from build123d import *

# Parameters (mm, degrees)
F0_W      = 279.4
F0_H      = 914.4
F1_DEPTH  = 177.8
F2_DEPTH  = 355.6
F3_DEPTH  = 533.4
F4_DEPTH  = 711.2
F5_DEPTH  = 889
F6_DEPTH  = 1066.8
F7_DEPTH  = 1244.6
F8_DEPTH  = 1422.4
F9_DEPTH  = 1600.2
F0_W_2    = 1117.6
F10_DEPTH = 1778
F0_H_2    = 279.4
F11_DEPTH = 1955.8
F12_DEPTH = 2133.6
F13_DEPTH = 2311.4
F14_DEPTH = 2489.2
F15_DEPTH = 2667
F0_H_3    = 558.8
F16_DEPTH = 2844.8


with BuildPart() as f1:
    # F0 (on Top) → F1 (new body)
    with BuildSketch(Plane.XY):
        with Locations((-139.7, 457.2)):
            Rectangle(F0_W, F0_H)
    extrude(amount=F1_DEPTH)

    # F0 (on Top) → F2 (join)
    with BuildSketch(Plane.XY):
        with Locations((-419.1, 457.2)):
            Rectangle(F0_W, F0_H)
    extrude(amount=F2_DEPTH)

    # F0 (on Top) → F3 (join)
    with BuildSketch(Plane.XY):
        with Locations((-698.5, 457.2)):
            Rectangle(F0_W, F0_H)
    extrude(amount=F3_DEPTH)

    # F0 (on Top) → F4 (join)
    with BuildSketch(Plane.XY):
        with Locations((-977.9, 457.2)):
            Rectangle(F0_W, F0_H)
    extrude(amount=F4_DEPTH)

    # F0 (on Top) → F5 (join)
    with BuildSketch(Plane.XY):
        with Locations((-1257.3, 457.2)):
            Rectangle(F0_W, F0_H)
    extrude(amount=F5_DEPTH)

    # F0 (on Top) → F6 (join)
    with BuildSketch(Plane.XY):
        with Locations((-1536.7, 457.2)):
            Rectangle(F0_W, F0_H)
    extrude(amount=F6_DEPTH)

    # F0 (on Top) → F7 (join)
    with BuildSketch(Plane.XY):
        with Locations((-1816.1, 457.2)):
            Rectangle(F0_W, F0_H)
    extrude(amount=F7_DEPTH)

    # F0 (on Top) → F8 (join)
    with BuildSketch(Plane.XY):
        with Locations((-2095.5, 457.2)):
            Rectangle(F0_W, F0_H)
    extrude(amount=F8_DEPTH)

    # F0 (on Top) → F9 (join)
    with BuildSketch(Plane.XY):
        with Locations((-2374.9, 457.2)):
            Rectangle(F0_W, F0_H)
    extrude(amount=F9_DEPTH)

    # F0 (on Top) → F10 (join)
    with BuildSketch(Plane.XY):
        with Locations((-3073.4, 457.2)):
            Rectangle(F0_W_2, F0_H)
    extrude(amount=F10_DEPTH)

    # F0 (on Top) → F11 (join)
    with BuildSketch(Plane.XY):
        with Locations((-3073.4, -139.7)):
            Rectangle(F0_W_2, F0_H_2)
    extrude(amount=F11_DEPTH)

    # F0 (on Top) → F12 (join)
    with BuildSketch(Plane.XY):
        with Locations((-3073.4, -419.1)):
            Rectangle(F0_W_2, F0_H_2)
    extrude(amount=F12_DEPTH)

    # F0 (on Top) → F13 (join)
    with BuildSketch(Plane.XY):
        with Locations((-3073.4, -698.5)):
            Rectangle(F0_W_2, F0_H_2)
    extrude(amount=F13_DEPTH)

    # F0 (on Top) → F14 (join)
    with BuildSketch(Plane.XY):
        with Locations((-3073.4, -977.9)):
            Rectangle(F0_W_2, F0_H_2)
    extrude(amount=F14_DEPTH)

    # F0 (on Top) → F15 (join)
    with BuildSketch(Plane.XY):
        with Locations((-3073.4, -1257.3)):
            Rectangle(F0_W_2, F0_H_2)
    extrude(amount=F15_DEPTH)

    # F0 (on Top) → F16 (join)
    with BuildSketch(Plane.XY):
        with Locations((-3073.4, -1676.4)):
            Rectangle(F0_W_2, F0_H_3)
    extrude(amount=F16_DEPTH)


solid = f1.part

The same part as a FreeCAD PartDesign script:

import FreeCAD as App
import Part
import Sketcher
Q = App.Units.Quantity

doc = App.newDocument("Part")
body = doc.addObject("PartDesign::Body", "Body")

sketch1 = doc.addObject("Sketcher::SketchObject", "Sketch")
body.addObject(sketch1)
sketch1.AttachmentSupport = (doc.XY_Plane, [""])
sketch1.MapMode = "FlatFace"
sketch1.addGeometry([
    Part.LineSegment(App.Vector(-279, 914, 0), App.Vector(-279, 0, 0)),
    Part.LineSegment(App.Vector(-279, 0, 0), App.Vector(0, 0, 0)),
    Part.LineSegment(App.Vector(0, 0, 0), App.Vector(0, 914, 0)),
    Part.LineSegment(App.Vector(0, 914, 0), App.Vector(-279, 914, 0)),
], False)
sketch1.addConstraint([
    Sketcher.Constraint("Coincident", 0, 2, 1, 1),
    Sketcher.Constraint("Coincident", 1, 2, 2, 1),
    Sketcher.Constraint("Coincident", 2, 2, 3, 1),
    Sketcher.Constraint("Coincident", 3, 2, 0, 1),
    Sketcher.Constraint("Vertical", 0),
    Sketcher.Constraint("Horizontal", 1),
    Sketcher.Constraint("Vertical", 2),
    Sketcher.Constraint("Horizontal", 3),
    Sketcher.Constraint("Coincident", 1, 2, -1, 1),
    Sketcher.Constraint("DistanceX", 1, 1, 1, 2, Q("11 in")),
    Sketcher.Constraint("DistanceY", 0, 2, 0, 1, Q("36 in")),
])
pad1 = doc.addObject("PartDesign::Pad", "Pad")
body.addObject(pad1)
pad1.Profile = sketch1
pad1.Length = Q("7 in")

sketch2 = doc.addObject("Sketcher::SketchObject", "Sketch001")
body.addObject(sketch2)
sketch2.AttachmentSupport = (doc.XY_Plane, [""])
sketch2.MapMode = "FlatFace"
sketch2.addGeometry([
    Part.LineSegment(App.Vector(-559, 914, 0), App.Vector(-559, 0, 0)),
    Part.LineSegment(App.Vector(-559, 0, 0), App.Vector(-279, 0, 0)),
    Part.LineSegment(App.Vector(-279, 0, 0), App.Vector(-279, 914, 0)),
    Part.LineSegment(App.Vector(-279, 914, 0), App.Vector(-559, 914, 0)),
], False)
sketch2.addConstraint([
    Sketcher.Constraint("Coincident", 0, 2, 1, 1),
    Sketcher.Constraint("Coincident", 1, 2, 2, 1),
    Sketcher.Constraint("Coincident", 2, 2, 3, 1),
    Sketcher.Constraint("Coincident", 3, 2, 0, 1),
    Sketcher.Constraint("Vertical", 0),
    Sketcher.Constraint("Horizontal", 1),
    Sketcher.Constraint("Vertical", 2),
    Sketcher.Constraint("Horizontal", 3),
    Sketcher.Constraint("PointOnObject", 0, 2, -1),
    Sketcher.Constraint("DistanceX", 1, 1, 1, 2, Q("11 in")),
    Sketcher.Constraint("DistanceY", 0, 2, 0, 1, Q("36 in")),
    Sketcher.Constraint("DistanceX", 0, 2, -1, 1, Q("22 in")),
])
pad2 = doc.addObject("PartDesign::Pad", "Pad001")
body.addObject(pad2)
pad2.Profile = sketch2
pad2.Length = Q("14 in")

sketch3 = doc.addObject("Sketcher::SketchObject", "Sketch002")
body.addObject(sketch3)
sketch3.AttachmentSupport = (doc.XY_Plane, [""])
sketch3.MapMode = "FlatFace"
sketch3.addGeometry([
    Part.LineSegment(App.Vector(-838, 914, 0), App.Vector(-838, 0, 0)),
    Part.LineSegment(App.Vector(-838, 0, 0), App.Vector(-559, 0, 0)),
    Part.LineSegment(App.Vector(-559, 0, 0), App.Vector(-559, 914, 0)),
    Part.LineSegment(App.Vector(-559, 914, 0), App.Vector(-838, 914, 0)),
], False)
sketch3.addConstraint([
    Sketcher.Constraint("Coincident", 0, 2, 1, 1),
    Sketcher.Constraint("Coincident", 1, 2, 2, 1),
    Sketcher.Constraint("Coincident", 2, 2, 3, 1),
    Sketcher.Constraint("Coincident", 3, 2, 0, 1),
    Sketcher.Constraint("Vertical", 0),
    Sketcher.Constraint("Horizontal", 1),
    Sketcher.Constraint("Vertical", 2),
    Sketcher.Constraint("Horizontal", 3),
    Sketcher.Constraint("PointOnObject", 0, 2, -1),
    Sketcher.Constraint("DistanceX", 1, 1, 1, 2, Q("11 in")),
    Sketcher.Constraint("DistanceY", 0, 2, 0, 1, Q("36 in")),
    Sketcher.Constraint("DistanceX", 0, 2, -1, 1, Q("33 in")),
])
pad3 = doc.addObject("PartDesign::Pad", "Pad002")
body.addObject(pad3)
pad3.Profile = sketch3
pad3.Length = Q("21 in")

sketch4 = doc.addObject("Sketcher::SketchObject", "Sketch003")
body.addObject(sketch4)
sketch4.AttachmentSupport = (doc.XY_Plane, [""])
sketch4.MapMode = "FlatFace"
sketch4.addGeometry([
    Part.LineSegment(App.Vector(-1118, 914, 0), App.Vector(-1118, 0, 0)),
    Part.LineSegment(App.Vector(-1118, 0, 0), App.Vector(-838, 0, 0)),
    Part.LineSegment(App.Vector(-838, 0, 0), App.Vector(-838, 914, 0)),
    Part.LineSegment(App.Vector(-838, 914, 0), App.Vector(-1118, 914, 0)),
], False)
sketch4.addConstraint([
    Sketcher.Constraint("Coincident", 0, 2, 1, 1),
    Sketcher.Constraint("Coincident", 1, 2, 2, 1),
    Sketcher.Constraint("Coincident", 2, 2, 3, 1),
    Sketcher.Constraint("Coincident", 3, 2, 0, 1),
    Sketcher.Constraint("Vertical", 0),
    Sketcher.Constraint("Horizontal", 1),
    Sketcher.Constraint("Vertical", 2),
    Sketcher.Constraint("Horizontal", 3),
    Sketcher.Constraint("PointOnObject", 0, 2, -1),
    Sketcher.Constraint("DistanceX", 1, 1, 1, 2, Q("11 in")),
    Sketcher.Constraint("DistanceY", 0, 2, 0, 1, Q("36 in")),
    Sketcher.Constraint("DistanceX", 0, 2, -1, 1, Q("44 in")),
])
pad4 = doc.addObject("PartDesign::Pad", "Pad003")
body.addObject(pad4)
pad4.Profile = sketch4
pad4.Length = Q("28 in")

sketch5 = doc.addObject("Sketcher::SketchObject", "Sketch004")
body.addObject(sketch5)
sketch5.AttachmentSupport = (doc.XY_Plane, [""])
sketch5.MapMode = "FlatFace"
sketch5.addGeometry([
    Part.LineSegment(App.Vector(-1397, 914, 0), App.Vector(-1397, 0, 0)),
    Part.LineSegment(App.Vector(-1397, 0, 0), App.Vector(-1118, 0, 0)),
    Part.LineSegment(App.Vector(-1118, 0, 0), App.Vector(-1118, 914, 0)),
    Part.LineSegment(App.Vector(-1118, 914, 0), App.Vector(-1397, 914, 0)),
], False)
sketch5.addConstraint([
    Sketcher.Constraint("Coincident", 0, 2, 1, 1),
    Sketcher.Constraint("Coincident", 1, 2, 2, 1),
    Sketcher.Constraint("Coincident", 2, 2, 3, 1),
    Sketcher.Constraint("Coincident", 3, 2, 0, 1),
    Sketcher.Constraint("Vertical", 0),
    Sketcher.Constraint("Horizontal", 1),
    Sketcher.Constraint("Vertical", 2),
    Sketcher.Constraint("Horizontal", 3),
    Sketcher.Constraint("PointOnObject", 0, 2, -1),
    Sketcher.Constraint("DistanceX", 1, 1, 1, 2, Q("11 in")),
    Sketcher.Constraint("DistanceY", 0, 2, 0, 1, Q("36 in")),
    Sketcher.Constraint("DistanceX", 0, 2, -1, 1, Q("55 in")),
])
pad5 = doc.addObject("PartDesign::Pad", "Pad004")
body.addObject(pad5)
pad5.Profile = sketch5
pad5.Length = Q("35 in")

sketch6 = doc.addObject("Sketcher::SketchObject", "Sketch005")
body.addObject(sketch6)
sketch6.AttachmentSupport = (doc.XY_Plane, [""])
sketch6.MapMode = "FlatFace"
sketch6.addGeometry([
    Part.LineSegment(App.Vector(-1676, 914, 0), App.Vector(-1676, 0, 0)),
    Part.LineSegment(App.Vector(-1676, 0, 0), App.Vector(-1397, 0, 0)),
    Part.LineSegment(App.Vector(-1397, 0, 0), App.Vector(-1397, 914, 0)),
    Part.LineSegment(App.Vector(-1397, 914, 0), App.Vector(-1676, 914, 0)),
], False)
sketch6.addConstraint([
    Sketcher.Constraint("Coincident", 0, 2, 1, 1),
    Sketcher.Constraint("Coincident", 1, 2, 2, 1),
    Sketcher.Constraint("Coincident", 2, 2, 3, 1),
    Sketcher.Constraint("Coincident", 3, 2, 0, 1),
    Sketcher.Constraint("Vertical", 0),
    Sketcher.Constraint("Horizontal", 1),
    Sketcher.Constraint("Vertical", 2),
    Sketcher.Constraint("Horizontal", 3),
    Sketcher.Constraint("PointOnObject", 0, 2, -1),
    Sketcher.Constraint("DistanceX", 1, 1, 1, 2, Q("11 in")),
    Sketcher.Constraint("DistanceY", 0, 2, 0, 1, Q("36 in")),
    Sketcher.Constraint("DistanceX", 0, 2, -1, 1, Q("66 in")),
])
pad6 = doc.addObject("PartDesign::Pad", "Pad005")
body.addObject(pad6)
pad6.Profile = sketch6
pad6.Length = Q("42 in")

sketch7 = doc.addObject("Sketcher::SketchObject", "Sketch006")
body.addObject(sketch7)
sketch7.AttachmentSupport = (doc.XY_Plane, [""])
sketch7.MapMode = "FlatFace"
sketch7.addGeometry([
    Part.LineSegment(App.Vector(-1956, 914, 0), App.Vector(-1956, 0, 0)),
    Part.LineSegment(App.Vector(-1956, 0, 0), App.Vector(-1676, 0, 0)),
    Part.LineSegment(App.Vector(-1676, 0, 0), App.Vector(-1676, 914, 0)),
    Part.LineSegment(App.Vector(-1676, 914, 0), App.Vector(-1956, 914, 0)),
], False)
sketch7.addConstraint([
    Sketcher.Constraint("Coincident", 0, 2, 1, 1),
    Sketcher.Constraint("Coincident", 1, 2, 2, 1),
    Sketcher.Constraint("Coincident", 2, 2, 3, 1),
    Sketcher.Constraint("Coincident", 3, 2, 0, 1),
    Sketcher.Constraint("Vertical", 0),
    Sketcher.Constraint("Horizontal", 1),
    Sketcher.Constraint("Vertical", 2),
    Sketcher.Constraint("Horizontal", 3),
    Sketcher.Constraint("PointOnObject", 0, 2, -1),
    Sketcher.Constraint("DistanceX", 1, 1, 1, 2, Q("11 in")),
    Sketcher.Constraint("DistanceY", 0, 2, 0, 1, Q("36 in")),
    Sketcher.Constraint("DistanceX", 0, 2, -1, 1, Q("77 in")),
])
pad7 = doc.addObject("PartDesign::Pad", "Pad006")
body.addObject(pad7)
pad7.Profile = sketch7
pad7.Length = Q("49 in")

sketch8 = doc.addObject("Sketcher::SketchObject", "Sketch007")
body.addObject(sketch8)
sketch8.AttachmentSupport = (doc.XY_Plane, [""])
sketch8.MapMode = "FlatFace"
sketch8.addGeometry([
    Part.LineSegment(App.Vector(-2235, 914, 0), App.Vector(-2235, 0, 0)),
    Part.LineSegment(App.Vector(-2235, 0, 0), App.Vector(-1956, 0, 0)),
    Part.LineSegment(App.Vector(-1956, 0, 0), App.Vector(-1956, 914, 0)),
    Part.LineSegment(App.Vector(-1956, 914, 0), App.Vector(-2235, 914, 0)),
], False)
sketch8.addConstraint([
    Sketcher.Constraint("Coincident", 0, 2, 1, 1),
    Sketcher.Constraint("Coincident", 1, 2, 2, 1),
    Sketcher.Constraint("Coincident", 2, 2, 3, 1),
    Sketcher.Constraint("Coincident", 3, 2, 0, 1),
    Sketcher.Constraint("Vertical", 0),
    Sketcher.Constraint("Horizontal", 1),
    Sketcher.Constraint("Vertical", 2),
    Sketcher.Constraint("Horizontal", 3),
    Sketcher.Constraint("PointOnObject", 0, 2, -1),
    Sketcher.Constraint("DistanceX", 1, 1, 1, 2, Q("11 in")),
    Sketcher.Constraint("DistanceY", 0, 2, 0, 1, Q("36 in")),
    Sketcher.Constraint("DistanceX", 0, 2, -1, 1, Q("88 in")),
])
pad8 = doc.addObject("PartDesign::Pad", "Pad007")
body.addObject(pad8)
pad8.Profile = sketch8
pad8.Length = Q("56 in")

sketch9 = doc.addObject("Sketcher::SketchObject", "Sketch008")
body.addObject(sketch9)
sketch9.AttachmentSupport = (doc.XY_Plane, [""])
sketch9.MapMode = "FlatFace"
sketch9.addGeometry([
    Part.LineSegment(App.Vector(-2515, 914, 0), App.Vector(-2515, 0, 0)),
    Part.LineSegment(App.Vector(-2515, 0, 0), App.Vector(-2235, 0, 0)),
    Part.LineSegment(App.Vector(-2235, 0, 0), App.Vector(-2235, 914, 0)),
    Part.LineSegment(App.Vector(-2235, 914, 0), App.Vector(-2515, 914, 0)),
], False)
sketch9.addConstraint([
    Sketcher.Constraint("Coincident", 0, 2, 1, 1),
    Sketcher.Constraint("Coincident", 1, 2, 2, 1),
    Sketcher.Constraint("Coincident", 2, 2, 3, 1),
    Sketcher.Constraint("Coincident", 3, 2, 0, 1),
    Sketcher.Constraint("Vertical", 0),
    Sketcher.Constraint("Horizontal", 1),
    Sketcher.Constraint("Vertical", 2),
    Sketcher.Constraint("Horizontal", 3),
    Sketcher.Constraint("PointOnObject", 0, 2, -1),
    Sketcher.Constraint("DistanceX", 1, 1, 1, 2, Q("11 in")),
    Sketcher.Constraint("DistanceY", 0, 2, 0, 1, Q("36 in")),
    Sketcher.Constraint("DistanceX", 0, 2, -1, 1, Q("99 in")),
])
pad9 = doc.addObject("PartDesign::Pad", "Pad008")
body.addObject(pad9)
pad9.Profile = sketch9
pad9.Length = Q("63 in")

sketch10 = doc.addObject("Sketcher::SketchObject", "Sketch009")
body.addObject(sketch10)
sketch10.AttachmentSupport = (doc.XY_Plane, [""])
sketch10.MapMode = "FlatFace"
sketch10.addGeometry([
    Part.LineSegment(App.Vector(-3632, 914, 0), App.Vector(-3632, 0, 0)),
    Part.LineSegment(App.Vector(-3632, 0, 0), App.Vector(-2515, 0, 0)),
    Part.LineSegment(App.Vector(-2515, 0, 0), App.Vector(-2515, 914, 0)),
    Part.LineSegment(App.Vector(-2515, 914, 0), App.Vector(-3632, 914, 0)),
], False)
sketch10.addConstraint([
    Sketcher.Constraint("Coincident", 0, 2, 1, 1),
    Sketcher.Constraint("Coincident", 1, 2, 2, 1),
    Sketcher.Constraint("Coincident", 2, 2, 3, 1),
    Sketcher.Constraint("Coincident", 3, 2, 0, 1),
    Sketcher.Constraint("Vertical", 0),
    Sketcher.Constraint("Horizontal", 1),
    Sketcher.Constraint("Vertical", 2),
    Sketcher.Constraint("Horizontal", 3),
    Sketcher.Constraint("PointOnObject", 0, 2, -1),
    Sketcher.Constraint("DistanceX", 1, 1, 1, 2, Q("44 in")),
    Sketcher.Constraint("DistanceY", 0, 2, 0, 1, Q("36 in")),
    Sketcher.Constraint("DistanceX", 0, 2, -1, 1, Q("143 in")),
])
pad10 = doc.addObject("PartDesign::Pad", "Pad009")
body.addObject(pad10)
pad10.Profile = sketch10
pad10.Length = Q("70 in")

sketch11 = doc.addObject("Sketcher::SketchObject", "Sketch010")
body.addObject(sketch11)
sketch11.AttachmentSupport = (doc.XY_Plane, [""])
sketch11.MapMode = "FlatFace"
sketch11.addGeometry([
    Part.LineSegment(App.Vector(-3632, 0, 0), App.Vector(-3632, -279, 0)),
    Part.LineSegment(App.Vector(-3632, -279, 0), App.Vector(-2515, -279, 0)),
    Part.LineSegment(App.Vector(-2515, -279, 0), App.Vector(-2515, 0, 0)),
    Part.LineSegment(App.Vector(-2515, 0, 0), App.Vector(-3632, 0, 0)),
], False)
sketch11.addConstraint([
    Sketcher.Constraint("Coincident", 0, 2, 1, 1),
    Sketcher.Constraint("Coincident", 1, 2, 2, 1),
    Sketcher.Constraint("Coincident", 2, 2, 3, 1),
    Sketcher.Constraint("Coincident", 3, 2, 0, 1),
    Sketcher.Constraint("Vertical", 0),
    Sketcher.Constraint("Horizontal", 1),
    Sketcher.Constraint("Vertical", 2),
    Sketcher.Constraint("Horizontal", 3),
    Sketcher.Constraint("PointOnObject", 2, 2, -1),
    Sketcher.Constraint("DistanceX", 1, 1, 1, 2, Q("44 in")),
    Sketcher.Constraint("DistanceY", 0, 2, 0, 1, Q("11 in")),
    Sketcher.Constraint("DistanceX", 0, 2, -1, 1, Q("143 in")),
])
pad11 = doc.addObject("PartDesign::Pad", "Pad010")
body.addObject(pad11)
pad11.Profile = sketch11
pad11.Length = Q("77 in")

sketch12 = doc.addObject("Sketcher::SketchObject", "Sketch011")
body.addObject(sketch12)
sketch12.AttachmentSupport = (doc.XY_Plane, [""])
sketch12.MapMode = "FlatFace"
sketch12.addGeometry([
    Part.LineSegment(App.Vector(-3632, -279, 0), App.Vector(-3632, -559, 0)),
    Part.LineSegment(App.Vector(-3632, -559, 0), App.Vector(-2515, -559, 0)),
    Part.LineSegment(App.Vector(-2515, -559, 0), App.Vector(-2515, -279, 0)),
    Part.LineSegment(App.Vector(-2515, -279, 0), App.Vector(-3632, -279, 0)),
], False)
sketch12.addConstraint([
    Sketcher.Constraint("Coincident", 0, 2, 1, 1),
    Sketcher.Constraint("Coincident", 1, 2, 2, 1),
    Sketcher.Constraint("Coincident", 2, 2, 3, 1),
    Sketcher.Constraint("Coincident", 3, 2, 0, 1),
    Sketcher.Constraint("Vertical", 0),
    Sketcher.Constraint("Horizontal", 1),
    Sketcher.Constraint("Vertical", 2),
    Sketcher.Constraint("Horizontal", 3),
    Sketcher.Constraint("DistanceX", 1, 1, 1, 2, Q("44 in")),
    Sketcher.Constraint("DistanceY", 0, 2, 0, 1, Q("11 in")),
    Sketcher.Constraint("DistanceX", 0, 2, -1, 1, Q("143 in")),
    Sketcher.Constraint("DistanceY", 0, 2, -1, 1, Q("22 in")),
])
pad12 = doc.addObject("PartDesign::Pad", "Pad011")
body.addObject(pad12)
pad12.Profile = sketch12
pad12.Length = Q("84 in")

sketch13 = doc.addObject("Sketcher::SketchObject", "Sketch012")
body.addObject(sketch13)
sketch13.AttachmentSupport = (doc.XY_Plane, [""])
sketch13.MapMode = "FlatFace"
sketch13.addGeometry([
    Part.LineSegment(App.Vector(-3632, -559, 0), App.Vector(-3632, -838, 0)),
    Part.LineSegment(App.Vector(-3632, -838, 0), App.Vector(-2515, -838, 0)),
    Part.LineSegment(App.Vector(-2515, -838, 0), App.Vector(-2515, -559, 0)),
    Part.LineSegment(App.Vector(-2515, -559, 0), App.Vector(-3632, -559, 0)),
], False)
sketch13.addConstraint([
    Sketcher.Constraint("Coincident", 0, 2, 1, 1),
    Sketcher.Constraint("Coincident", 1, 2, 2, 1),
    Sketcher.Constraint("Coincident", 2, 2, 3, 1),
    Sketcher.Constraint("Coincident", 3, 2, 0, 1),
    Sketcher.Constraint("Vertical", 0),
    Sketcher.Constraint("Horizontal", 1),
    Sketcher.Constraint("Vertical", 2),
    Sketcher.Constraint("Horizontal", 3),
    Sketcher.Constraint("DistanceX", 1, 1, 1, 2, Q("44 in")),
    Sketcher.Constraint("DistanceY", 0, 2, 0, 1, Q("11 in")),
    Sketcher.Constraint("DistanceX", 0, 2, -1, 1, Q("143 in")),
    Sketcher.Constraint("DistanceY", 0, 2, -1, 1, Q("33 in")),
])
pad13 = doc.addObject("PartDesign::Pad", "Pad012")
body.addObject(pad13)
pad13.Profile = sketch13
pad13.Length = Q("91 in")

sketch14 = doc.addObject("Sketcher::SketchObject", "Sketch013")
body.addObject(sketch14)
sketch14.AttachmentSupport = (doc.XY_Plane, [""])
sketch14.MapMode = "FlatFace"
sketch14.addGeometry([
    Part.LineSegment(App.Vector(-3632, -838, 0), App.Vector(-3632, -1118, 0)),
    Part.LineSegment(App.Vector(-3632, -1118, 0), App.Vector(-2515, -1118, 0)),
    Part.LineSegment(App.Vector(-2515, -1118, 0), App.Vector(-2515, -838, 0)),
    Part.LineSegment(App.Vector(-2515, -838, 0), App.Vector(-3632, -838, 0)),
], False)
sketch14.addConstraint([
    Sketcher.Constraint("Coincident", 0, 2, 1, 1),
    Sketcher.Constraint("Coincident", 1, 2, 2, 1),
    Sketcher.Constraint("Coincident", 2, 2, 3, 1),
    Sketcher.Constraint("Coincident", 3, 2, 0, 1),
    Sketcher.Constraint("Vertical", 0),
    Sketcher.Constraint("Horizontal", 1),
    Sketcher.Constraint("Vertical", 2),
    Sketcher.Constraint("Horizontal", 3),
    Sketcher.Constraint("DistanceX", 1, 1, 1, 2, Q("44 in")),
    Sketcher.Constraint("DistanceY", 0, 2, 0, 1, Q("11 in")),
    Sketcher.Constraint("DistanceX", 0, 2, -1, 1, Q("143 in")),
    Sketcher.Constraint("DistanceY", 0, 2, -1, 1, Q("44 in")),
])
pad14 = doc.addObject("PartDesign::Pad", "Pad013")
body.addObject(pad14)
pad14.Profile = sketch14
pad14.Length = Q("98 in")

sketch15 = doc.addObject("Sketcher::SketchObject", "Sketch014")
body.addObject(sketch15)
sketch15.AttachmentSupport = (doc.XY_Plane, [""])
sketch15.MapMode = "FlatFace"
sketch15.addGeometry([
    Part.LineSegment(App.Vector(-3632, -1118, 0), App.Vector(-3632, -1397, 0)),
    Part.LineSegment(App.Vector(-3632, -1397, 0), App.Vector(-2515, -1397, 0)),
    Part.LineSegment(App.Vector(-2515, -1397, 0), App.Vector(-2515, -1118, 0)),
    Part.LineSegment(App.Vector(-2515, -1118, 0), App.Vector(-3632, -1118, 0)),
], False)
sketch15.addConstraint([
    Sketcher.Constraint("Coincident", 0, 2, 1, 1),
    Sketcher.Constraint("Coincident", 1, 2, 2, 1),
    Sketcher.Constraint("Coincident", 2, 2, 3, 1),
    Sketcher.Constraint("Coincident", 3, 2, 0, 1),
    Sketcher.Constraint("Vertical", 0),
    Sketcher.Constraint("Horizontal", 1),
    Sketcher.Constraint("Vertical", 2),
    Sketcher.Constraint("Horizontal", 3),
    Sketcher.Constraint("DistanceX", 1, 1, 1, 2, Q("44 in")),
    Sketcher.Constraint("DistanceY", 0, 2, 0, 1, Q("11 in")),
    Sketcher.Constraint("DistanceX", 0, 2, -1, 1, Q("143 in")),
    Sketcher.Constraint("DistanceY", 0, 2, -1, 1, Q("55 in")),
])
pad15 = doc.addObject("PartDesign::Pad", "Pad014")
body.addObject(pad15)
pad15.Profile = sketch15
pad15.Length = Q("105 in")

sketch16 = doc.addObject("Sketcher::SketchObject", "Sketch015")
body.addObject(sketch16)
sketch16.AttachmentSupport = (doc.XY_Plane, [""])
sketch16.MapMode = "FlatFace"
sketch16.addGeometry([
    Part.LineSegment(App.Vector(-3632, -1397, 0), App.Vector(-3632, -1956, 0)),
    Part.LineSegment(App.Vector(-3632, -1956, 0), App.Vector(-2515, -1956, 0)),
    Part.LineSegment(App.Vector(-2515, -1956, 0), App.Vector(-2515, -1397, 0)),
    Part.LineSegment(App.Vector(-2515, -1397, 0), App.Vector(-3632, -1397, 0)),
], False)
sketch16.addConstraint([
    Sketcher.Constraint("Coincident", 0, 2, 1, 1),
    Sketcher.Constraint("Coincident", 1, 2, 2, 1),
    Sketcher.Constraint("Coincident", 2, 2, 3, 1),
    Sketcher.Constraint("Coincident", 3, 2, 0, 1),
    Sketcher.Constraint("Vertical", 0),
    Sketcher.Constraint("Horizontal", 1),
    Sketcher.Constraint("Vertical", 2),
    Sketcher.Constraint("Horizontal", 3),
    Sketcher.Constraint("DistanceX", 1, 1, 1, 2, Q("44 in")),
    Sketcher.Constraint("DistanceY", 0, 2, 0, 1, Q("22 in")),
    Sketcher.Constraint("DistanceX", 0, 2, -1, 1, Q("143 in")),
    Sketcher.Constraint("DistanceY", 0, 2, -1, 1, Q("77 in")),
])
pad16 = doc.addObject("PartDesign::Pad", "Pad015")
body.addObject(pad16)
pad16.Profile = sketch16
pad16.Length = Q("112 in")

doc.recompute()
